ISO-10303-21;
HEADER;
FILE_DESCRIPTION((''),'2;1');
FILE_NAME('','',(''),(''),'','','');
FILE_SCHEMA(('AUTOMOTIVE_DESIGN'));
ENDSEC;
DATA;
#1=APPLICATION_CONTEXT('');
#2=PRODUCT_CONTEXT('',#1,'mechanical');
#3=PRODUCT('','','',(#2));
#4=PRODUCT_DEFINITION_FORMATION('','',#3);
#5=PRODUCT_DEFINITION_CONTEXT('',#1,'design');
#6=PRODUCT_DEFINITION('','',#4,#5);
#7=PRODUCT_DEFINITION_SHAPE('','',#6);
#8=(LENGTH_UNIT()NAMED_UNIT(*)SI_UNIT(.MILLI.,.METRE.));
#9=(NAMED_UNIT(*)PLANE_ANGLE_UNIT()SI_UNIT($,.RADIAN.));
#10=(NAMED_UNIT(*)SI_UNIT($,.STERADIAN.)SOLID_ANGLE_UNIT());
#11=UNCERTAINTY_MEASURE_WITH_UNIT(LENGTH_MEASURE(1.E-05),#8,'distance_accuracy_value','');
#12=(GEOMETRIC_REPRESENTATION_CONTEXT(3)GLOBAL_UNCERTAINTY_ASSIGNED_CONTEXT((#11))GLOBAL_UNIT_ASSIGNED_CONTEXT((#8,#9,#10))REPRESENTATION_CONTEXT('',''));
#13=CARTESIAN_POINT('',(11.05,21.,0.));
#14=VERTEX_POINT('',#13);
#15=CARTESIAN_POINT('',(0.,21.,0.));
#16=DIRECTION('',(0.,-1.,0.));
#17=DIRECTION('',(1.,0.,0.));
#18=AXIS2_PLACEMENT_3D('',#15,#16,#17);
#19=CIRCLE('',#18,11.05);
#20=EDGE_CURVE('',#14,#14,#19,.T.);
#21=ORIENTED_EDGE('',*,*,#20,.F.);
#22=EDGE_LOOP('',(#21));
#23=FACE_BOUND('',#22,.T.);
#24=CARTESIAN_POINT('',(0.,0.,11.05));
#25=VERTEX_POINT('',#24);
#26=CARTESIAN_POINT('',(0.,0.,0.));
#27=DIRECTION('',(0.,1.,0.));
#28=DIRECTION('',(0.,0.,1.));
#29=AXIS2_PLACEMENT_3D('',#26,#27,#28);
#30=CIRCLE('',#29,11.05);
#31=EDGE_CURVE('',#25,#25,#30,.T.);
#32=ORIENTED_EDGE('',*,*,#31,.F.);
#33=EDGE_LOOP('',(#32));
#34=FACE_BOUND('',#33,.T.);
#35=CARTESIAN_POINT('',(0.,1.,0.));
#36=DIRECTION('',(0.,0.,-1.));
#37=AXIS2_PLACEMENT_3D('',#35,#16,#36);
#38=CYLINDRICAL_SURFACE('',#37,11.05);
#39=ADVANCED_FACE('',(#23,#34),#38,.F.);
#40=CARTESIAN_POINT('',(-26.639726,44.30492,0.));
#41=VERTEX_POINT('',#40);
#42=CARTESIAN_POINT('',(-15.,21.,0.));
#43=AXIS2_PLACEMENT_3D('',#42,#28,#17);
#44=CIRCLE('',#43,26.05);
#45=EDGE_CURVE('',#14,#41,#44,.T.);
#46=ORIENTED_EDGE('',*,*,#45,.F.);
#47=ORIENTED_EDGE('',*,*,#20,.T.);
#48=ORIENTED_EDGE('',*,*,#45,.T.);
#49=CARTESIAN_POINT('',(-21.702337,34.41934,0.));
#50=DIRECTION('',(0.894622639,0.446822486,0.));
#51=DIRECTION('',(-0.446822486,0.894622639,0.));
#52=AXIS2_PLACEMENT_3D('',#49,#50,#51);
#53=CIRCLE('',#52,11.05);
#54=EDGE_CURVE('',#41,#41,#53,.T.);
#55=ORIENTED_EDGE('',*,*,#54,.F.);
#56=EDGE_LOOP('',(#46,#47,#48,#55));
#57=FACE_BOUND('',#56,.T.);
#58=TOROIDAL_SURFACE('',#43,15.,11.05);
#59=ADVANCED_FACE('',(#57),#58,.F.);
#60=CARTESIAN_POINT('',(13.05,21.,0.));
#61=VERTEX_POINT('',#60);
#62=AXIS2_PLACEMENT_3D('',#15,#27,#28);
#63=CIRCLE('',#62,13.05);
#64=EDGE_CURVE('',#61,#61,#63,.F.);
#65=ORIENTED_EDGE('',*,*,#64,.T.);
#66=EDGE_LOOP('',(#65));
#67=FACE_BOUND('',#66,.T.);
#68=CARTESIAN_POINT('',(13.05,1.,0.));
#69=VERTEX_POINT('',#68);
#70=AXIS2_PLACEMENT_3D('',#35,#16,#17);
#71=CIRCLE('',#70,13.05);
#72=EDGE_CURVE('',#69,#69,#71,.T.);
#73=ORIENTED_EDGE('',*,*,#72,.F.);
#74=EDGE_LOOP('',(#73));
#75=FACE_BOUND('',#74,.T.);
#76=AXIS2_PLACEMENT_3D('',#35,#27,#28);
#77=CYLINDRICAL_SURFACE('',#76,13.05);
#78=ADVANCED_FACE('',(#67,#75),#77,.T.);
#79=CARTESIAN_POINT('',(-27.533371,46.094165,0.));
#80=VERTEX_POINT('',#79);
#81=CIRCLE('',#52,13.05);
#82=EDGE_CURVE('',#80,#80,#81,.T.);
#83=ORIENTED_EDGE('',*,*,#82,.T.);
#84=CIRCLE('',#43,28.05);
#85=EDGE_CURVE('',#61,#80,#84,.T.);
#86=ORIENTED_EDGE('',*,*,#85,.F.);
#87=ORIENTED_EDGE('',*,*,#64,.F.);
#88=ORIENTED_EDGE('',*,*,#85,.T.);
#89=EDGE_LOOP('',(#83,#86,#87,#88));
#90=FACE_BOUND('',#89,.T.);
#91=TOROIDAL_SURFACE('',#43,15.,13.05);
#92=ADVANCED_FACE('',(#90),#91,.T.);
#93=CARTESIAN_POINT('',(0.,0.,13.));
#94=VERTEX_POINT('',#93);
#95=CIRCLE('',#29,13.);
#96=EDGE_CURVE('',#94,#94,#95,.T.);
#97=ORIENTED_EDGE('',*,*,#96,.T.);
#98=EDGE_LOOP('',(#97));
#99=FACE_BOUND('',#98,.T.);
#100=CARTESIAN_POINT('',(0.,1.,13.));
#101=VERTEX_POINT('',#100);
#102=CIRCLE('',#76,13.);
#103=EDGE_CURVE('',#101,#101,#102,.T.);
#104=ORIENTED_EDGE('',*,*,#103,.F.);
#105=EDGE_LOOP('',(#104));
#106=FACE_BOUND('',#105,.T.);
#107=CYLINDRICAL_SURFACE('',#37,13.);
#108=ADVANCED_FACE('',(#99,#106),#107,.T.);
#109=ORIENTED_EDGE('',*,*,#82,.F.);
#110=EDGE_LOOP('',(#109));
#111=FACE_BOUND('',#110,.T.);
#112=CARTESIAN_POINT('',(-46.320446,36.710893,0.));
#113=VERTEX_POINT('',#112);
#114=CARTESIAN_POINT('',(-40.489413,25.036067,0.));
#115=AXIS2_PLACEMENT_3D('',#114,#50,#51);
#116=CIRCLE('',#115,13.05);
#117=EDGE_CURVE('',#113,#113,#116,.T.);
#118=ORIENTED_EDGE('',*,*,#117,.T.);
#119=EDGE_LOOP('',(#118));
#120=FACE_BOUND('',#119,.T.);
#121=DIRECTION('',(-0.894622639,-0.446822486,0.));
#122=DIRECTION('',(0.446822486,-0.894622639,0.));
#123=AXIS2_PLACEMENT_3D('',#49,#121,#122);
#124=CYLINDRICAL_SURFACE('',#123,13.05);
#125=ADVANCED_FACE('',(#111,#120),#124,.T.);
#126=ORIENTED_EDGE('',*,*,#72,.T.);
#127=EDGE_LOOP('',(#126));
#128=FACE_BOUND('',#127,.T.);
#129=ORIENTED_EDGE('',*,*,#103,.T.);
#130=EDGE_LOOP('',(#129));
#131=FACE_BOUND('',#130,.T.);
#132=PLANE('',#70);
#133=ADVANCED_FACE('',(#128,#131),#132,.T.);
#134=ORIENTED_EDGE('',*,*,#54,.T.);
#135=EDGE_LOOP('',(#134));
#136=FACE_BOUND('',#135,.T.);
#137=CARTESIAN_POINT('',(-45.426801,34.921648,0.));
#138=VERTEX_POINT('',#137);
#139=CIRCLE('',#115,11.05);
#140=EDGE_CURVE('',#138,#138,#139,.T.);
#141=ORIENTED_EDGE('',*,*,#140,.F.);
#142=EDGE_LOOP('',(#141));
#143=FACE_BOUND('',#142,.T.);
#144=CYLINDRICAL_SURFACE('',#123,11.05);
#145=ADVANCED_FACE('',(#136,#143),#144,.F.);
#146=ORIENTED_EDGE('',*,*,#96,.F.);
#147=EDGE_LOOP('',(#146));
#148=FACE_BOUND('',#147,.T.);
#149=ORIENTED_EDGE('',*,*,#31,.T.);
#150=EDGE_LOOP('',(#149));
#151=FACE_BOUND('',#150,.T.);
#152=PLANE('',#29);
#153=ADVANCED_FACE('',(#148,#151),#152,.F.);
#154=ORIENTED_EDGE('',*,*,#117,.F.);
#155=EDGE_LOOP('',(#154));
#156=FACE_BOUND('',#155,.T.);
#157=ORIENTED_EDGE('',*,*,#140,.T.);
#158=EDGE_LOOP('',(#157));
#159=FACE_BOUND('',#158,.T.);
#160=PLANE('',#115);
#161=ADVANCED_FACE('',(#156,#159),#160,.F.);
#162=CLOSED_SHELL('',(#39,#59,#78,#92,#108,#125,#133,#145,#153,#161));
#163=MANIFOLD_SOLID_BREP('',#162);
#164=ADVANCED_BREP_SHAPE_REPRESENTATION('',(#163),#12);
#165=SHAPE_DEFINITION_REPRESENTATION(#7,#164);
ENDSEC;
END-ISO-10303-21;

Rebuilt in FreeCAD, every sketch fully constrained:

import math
import FreeCAD as App
import Part
import Sketcher
Q = App.Units.Quantity

doc = App.newDocument("Part")
body = doc.addObject("PartDesign::Body", "Body")

sketch1 = body.newObject("Sketcher::SketchObject", "Sketch")
sketch1.AttachmentSupport = (doc.getObject("XZ_Plane"), [""])
sketch1.MapMode = "FlatFace"
sketch1.addGeometry(Part.Circle(App.Vector(0, 0, 0), App.Vector(0, 0, 1), 13), False)
sketch1.addGeometry(Part.Circle(App.Vector(0, 0, 0), App.Vector(0, 0, 1), 11), False)
sketch1.addConstraint(Sketcher.Constraint("Coincident", 0, 3, -1, 1))
sketch1.addConstraint(Sketcher.Constraint("Coincident", 1, 3, -1, 1))
sketch1.addConstraint(Sketcher.Constraint("Diameter", 0, Q("26 mm")))
sketch1.addConstraint(Sketcher.Constraint("Diameter", 1, Q("22.1 mm")))
pad1 = body.newObject("PartDesign::Pad", "Pad")
pad1.Profile = sketch1
pad1.Length = 1
pad1.Reversed = True

sketch2 = body.newObject("Sketcher::SketchObject", "Sketch001")
sketch2.AttachmentSupport = (doc.getObject("XZ_Plane"), [""])
sketch2.MapMode = "FlatFace"
sketch2.AttachmentOffset = App.Placement(App.Vector(0, 0, -1), App.Rotation())
sketch2.addGeometry(Part.Circle(App.Vector(0, 0, 0), App.Vector(0, 0, 1), 13), False)
sketch2.addGeometry(Part.Circle(App.Vector(0, 0, 0), App.Vector(0, 0, 1), 11), False)
sketch2.addConstraint(Sketcher.Constraint("Coincident", 0, 3, -1, 1))
sketch2.addConstraint(Sketcher.Constraint("Coincident", 1, 3, -1, 1))
sketch2.addConstraint(Sketcher.Constraint("Diameter", 0, Q("26.1 mm")))
sketch2.addConstraint(Sketcher.Constraint("Diameter", 1, Q("22.1 mm")))

sketch3 = body.newObject("Sketcher::SketchObject", "Sketch002")
sketch3.AttachmentSupport = (doc.getObject("XY_Plane"), [""])
sketch3.MapMode = "FlatFace"
sketch3.addGeometry(Part.LineSegment(App.Vector(0, 1, 0), App.Vector(0, 21, 0)), False)
sketch3.addGeometry(Part.ArcOfCircle(Part.Circle(App.Vector(-15, 21, 0), App.Vector(0, 0, 1), 15), math.radians(0), math.radians(117)), False)
sketch3.addGeometry(Part.LineSegment(App.Vector(-22, 34, 0), App.Vector(-40, 25, 0)), False)
sketch3.addConstraint(Sketcher.Constraint("Tangent", 0, 2, 1, 1))
sketch3.addConstraint(Sketcher.Constraint("Tangent", 1, 2, 2, 1))
sketch3.addConstraint(Sketcher.Constraint("Vertical", 0))
sketch3.addConstraint(Sketcher.Constraint("PointOnObject", 0, 1, -2))
sketch3.addConstraint(Sketcher.Constraint("Radius", 1, Q("15 mm")))
sketch3.addConstraint(Sketcher.Constraint("DistanceY", 0, 1, 0, 2, Q("20 mm")))
sketch3.addConstraint(Sketcher.Constraint("Distance", 2, Q("21 mm")))
sketch3.addConstraint(Sketcher.Constraint("DistanceY", -1, 1, 1, 3, Q("21 mm")))
sketch3.addConstraint(Sketcher.Constraint("Angle", 2, Q("-153.46 deg")))
doc.recompute()

additivepipe = body.newObject("PartDesign::AdditivePipe", "AdditivePipe")
additivepipe.Profile = sketch2
additivepipe.Spine = (sketch3, ["Edge1", "Edge2", "Edge3"])

doc.recompute()
